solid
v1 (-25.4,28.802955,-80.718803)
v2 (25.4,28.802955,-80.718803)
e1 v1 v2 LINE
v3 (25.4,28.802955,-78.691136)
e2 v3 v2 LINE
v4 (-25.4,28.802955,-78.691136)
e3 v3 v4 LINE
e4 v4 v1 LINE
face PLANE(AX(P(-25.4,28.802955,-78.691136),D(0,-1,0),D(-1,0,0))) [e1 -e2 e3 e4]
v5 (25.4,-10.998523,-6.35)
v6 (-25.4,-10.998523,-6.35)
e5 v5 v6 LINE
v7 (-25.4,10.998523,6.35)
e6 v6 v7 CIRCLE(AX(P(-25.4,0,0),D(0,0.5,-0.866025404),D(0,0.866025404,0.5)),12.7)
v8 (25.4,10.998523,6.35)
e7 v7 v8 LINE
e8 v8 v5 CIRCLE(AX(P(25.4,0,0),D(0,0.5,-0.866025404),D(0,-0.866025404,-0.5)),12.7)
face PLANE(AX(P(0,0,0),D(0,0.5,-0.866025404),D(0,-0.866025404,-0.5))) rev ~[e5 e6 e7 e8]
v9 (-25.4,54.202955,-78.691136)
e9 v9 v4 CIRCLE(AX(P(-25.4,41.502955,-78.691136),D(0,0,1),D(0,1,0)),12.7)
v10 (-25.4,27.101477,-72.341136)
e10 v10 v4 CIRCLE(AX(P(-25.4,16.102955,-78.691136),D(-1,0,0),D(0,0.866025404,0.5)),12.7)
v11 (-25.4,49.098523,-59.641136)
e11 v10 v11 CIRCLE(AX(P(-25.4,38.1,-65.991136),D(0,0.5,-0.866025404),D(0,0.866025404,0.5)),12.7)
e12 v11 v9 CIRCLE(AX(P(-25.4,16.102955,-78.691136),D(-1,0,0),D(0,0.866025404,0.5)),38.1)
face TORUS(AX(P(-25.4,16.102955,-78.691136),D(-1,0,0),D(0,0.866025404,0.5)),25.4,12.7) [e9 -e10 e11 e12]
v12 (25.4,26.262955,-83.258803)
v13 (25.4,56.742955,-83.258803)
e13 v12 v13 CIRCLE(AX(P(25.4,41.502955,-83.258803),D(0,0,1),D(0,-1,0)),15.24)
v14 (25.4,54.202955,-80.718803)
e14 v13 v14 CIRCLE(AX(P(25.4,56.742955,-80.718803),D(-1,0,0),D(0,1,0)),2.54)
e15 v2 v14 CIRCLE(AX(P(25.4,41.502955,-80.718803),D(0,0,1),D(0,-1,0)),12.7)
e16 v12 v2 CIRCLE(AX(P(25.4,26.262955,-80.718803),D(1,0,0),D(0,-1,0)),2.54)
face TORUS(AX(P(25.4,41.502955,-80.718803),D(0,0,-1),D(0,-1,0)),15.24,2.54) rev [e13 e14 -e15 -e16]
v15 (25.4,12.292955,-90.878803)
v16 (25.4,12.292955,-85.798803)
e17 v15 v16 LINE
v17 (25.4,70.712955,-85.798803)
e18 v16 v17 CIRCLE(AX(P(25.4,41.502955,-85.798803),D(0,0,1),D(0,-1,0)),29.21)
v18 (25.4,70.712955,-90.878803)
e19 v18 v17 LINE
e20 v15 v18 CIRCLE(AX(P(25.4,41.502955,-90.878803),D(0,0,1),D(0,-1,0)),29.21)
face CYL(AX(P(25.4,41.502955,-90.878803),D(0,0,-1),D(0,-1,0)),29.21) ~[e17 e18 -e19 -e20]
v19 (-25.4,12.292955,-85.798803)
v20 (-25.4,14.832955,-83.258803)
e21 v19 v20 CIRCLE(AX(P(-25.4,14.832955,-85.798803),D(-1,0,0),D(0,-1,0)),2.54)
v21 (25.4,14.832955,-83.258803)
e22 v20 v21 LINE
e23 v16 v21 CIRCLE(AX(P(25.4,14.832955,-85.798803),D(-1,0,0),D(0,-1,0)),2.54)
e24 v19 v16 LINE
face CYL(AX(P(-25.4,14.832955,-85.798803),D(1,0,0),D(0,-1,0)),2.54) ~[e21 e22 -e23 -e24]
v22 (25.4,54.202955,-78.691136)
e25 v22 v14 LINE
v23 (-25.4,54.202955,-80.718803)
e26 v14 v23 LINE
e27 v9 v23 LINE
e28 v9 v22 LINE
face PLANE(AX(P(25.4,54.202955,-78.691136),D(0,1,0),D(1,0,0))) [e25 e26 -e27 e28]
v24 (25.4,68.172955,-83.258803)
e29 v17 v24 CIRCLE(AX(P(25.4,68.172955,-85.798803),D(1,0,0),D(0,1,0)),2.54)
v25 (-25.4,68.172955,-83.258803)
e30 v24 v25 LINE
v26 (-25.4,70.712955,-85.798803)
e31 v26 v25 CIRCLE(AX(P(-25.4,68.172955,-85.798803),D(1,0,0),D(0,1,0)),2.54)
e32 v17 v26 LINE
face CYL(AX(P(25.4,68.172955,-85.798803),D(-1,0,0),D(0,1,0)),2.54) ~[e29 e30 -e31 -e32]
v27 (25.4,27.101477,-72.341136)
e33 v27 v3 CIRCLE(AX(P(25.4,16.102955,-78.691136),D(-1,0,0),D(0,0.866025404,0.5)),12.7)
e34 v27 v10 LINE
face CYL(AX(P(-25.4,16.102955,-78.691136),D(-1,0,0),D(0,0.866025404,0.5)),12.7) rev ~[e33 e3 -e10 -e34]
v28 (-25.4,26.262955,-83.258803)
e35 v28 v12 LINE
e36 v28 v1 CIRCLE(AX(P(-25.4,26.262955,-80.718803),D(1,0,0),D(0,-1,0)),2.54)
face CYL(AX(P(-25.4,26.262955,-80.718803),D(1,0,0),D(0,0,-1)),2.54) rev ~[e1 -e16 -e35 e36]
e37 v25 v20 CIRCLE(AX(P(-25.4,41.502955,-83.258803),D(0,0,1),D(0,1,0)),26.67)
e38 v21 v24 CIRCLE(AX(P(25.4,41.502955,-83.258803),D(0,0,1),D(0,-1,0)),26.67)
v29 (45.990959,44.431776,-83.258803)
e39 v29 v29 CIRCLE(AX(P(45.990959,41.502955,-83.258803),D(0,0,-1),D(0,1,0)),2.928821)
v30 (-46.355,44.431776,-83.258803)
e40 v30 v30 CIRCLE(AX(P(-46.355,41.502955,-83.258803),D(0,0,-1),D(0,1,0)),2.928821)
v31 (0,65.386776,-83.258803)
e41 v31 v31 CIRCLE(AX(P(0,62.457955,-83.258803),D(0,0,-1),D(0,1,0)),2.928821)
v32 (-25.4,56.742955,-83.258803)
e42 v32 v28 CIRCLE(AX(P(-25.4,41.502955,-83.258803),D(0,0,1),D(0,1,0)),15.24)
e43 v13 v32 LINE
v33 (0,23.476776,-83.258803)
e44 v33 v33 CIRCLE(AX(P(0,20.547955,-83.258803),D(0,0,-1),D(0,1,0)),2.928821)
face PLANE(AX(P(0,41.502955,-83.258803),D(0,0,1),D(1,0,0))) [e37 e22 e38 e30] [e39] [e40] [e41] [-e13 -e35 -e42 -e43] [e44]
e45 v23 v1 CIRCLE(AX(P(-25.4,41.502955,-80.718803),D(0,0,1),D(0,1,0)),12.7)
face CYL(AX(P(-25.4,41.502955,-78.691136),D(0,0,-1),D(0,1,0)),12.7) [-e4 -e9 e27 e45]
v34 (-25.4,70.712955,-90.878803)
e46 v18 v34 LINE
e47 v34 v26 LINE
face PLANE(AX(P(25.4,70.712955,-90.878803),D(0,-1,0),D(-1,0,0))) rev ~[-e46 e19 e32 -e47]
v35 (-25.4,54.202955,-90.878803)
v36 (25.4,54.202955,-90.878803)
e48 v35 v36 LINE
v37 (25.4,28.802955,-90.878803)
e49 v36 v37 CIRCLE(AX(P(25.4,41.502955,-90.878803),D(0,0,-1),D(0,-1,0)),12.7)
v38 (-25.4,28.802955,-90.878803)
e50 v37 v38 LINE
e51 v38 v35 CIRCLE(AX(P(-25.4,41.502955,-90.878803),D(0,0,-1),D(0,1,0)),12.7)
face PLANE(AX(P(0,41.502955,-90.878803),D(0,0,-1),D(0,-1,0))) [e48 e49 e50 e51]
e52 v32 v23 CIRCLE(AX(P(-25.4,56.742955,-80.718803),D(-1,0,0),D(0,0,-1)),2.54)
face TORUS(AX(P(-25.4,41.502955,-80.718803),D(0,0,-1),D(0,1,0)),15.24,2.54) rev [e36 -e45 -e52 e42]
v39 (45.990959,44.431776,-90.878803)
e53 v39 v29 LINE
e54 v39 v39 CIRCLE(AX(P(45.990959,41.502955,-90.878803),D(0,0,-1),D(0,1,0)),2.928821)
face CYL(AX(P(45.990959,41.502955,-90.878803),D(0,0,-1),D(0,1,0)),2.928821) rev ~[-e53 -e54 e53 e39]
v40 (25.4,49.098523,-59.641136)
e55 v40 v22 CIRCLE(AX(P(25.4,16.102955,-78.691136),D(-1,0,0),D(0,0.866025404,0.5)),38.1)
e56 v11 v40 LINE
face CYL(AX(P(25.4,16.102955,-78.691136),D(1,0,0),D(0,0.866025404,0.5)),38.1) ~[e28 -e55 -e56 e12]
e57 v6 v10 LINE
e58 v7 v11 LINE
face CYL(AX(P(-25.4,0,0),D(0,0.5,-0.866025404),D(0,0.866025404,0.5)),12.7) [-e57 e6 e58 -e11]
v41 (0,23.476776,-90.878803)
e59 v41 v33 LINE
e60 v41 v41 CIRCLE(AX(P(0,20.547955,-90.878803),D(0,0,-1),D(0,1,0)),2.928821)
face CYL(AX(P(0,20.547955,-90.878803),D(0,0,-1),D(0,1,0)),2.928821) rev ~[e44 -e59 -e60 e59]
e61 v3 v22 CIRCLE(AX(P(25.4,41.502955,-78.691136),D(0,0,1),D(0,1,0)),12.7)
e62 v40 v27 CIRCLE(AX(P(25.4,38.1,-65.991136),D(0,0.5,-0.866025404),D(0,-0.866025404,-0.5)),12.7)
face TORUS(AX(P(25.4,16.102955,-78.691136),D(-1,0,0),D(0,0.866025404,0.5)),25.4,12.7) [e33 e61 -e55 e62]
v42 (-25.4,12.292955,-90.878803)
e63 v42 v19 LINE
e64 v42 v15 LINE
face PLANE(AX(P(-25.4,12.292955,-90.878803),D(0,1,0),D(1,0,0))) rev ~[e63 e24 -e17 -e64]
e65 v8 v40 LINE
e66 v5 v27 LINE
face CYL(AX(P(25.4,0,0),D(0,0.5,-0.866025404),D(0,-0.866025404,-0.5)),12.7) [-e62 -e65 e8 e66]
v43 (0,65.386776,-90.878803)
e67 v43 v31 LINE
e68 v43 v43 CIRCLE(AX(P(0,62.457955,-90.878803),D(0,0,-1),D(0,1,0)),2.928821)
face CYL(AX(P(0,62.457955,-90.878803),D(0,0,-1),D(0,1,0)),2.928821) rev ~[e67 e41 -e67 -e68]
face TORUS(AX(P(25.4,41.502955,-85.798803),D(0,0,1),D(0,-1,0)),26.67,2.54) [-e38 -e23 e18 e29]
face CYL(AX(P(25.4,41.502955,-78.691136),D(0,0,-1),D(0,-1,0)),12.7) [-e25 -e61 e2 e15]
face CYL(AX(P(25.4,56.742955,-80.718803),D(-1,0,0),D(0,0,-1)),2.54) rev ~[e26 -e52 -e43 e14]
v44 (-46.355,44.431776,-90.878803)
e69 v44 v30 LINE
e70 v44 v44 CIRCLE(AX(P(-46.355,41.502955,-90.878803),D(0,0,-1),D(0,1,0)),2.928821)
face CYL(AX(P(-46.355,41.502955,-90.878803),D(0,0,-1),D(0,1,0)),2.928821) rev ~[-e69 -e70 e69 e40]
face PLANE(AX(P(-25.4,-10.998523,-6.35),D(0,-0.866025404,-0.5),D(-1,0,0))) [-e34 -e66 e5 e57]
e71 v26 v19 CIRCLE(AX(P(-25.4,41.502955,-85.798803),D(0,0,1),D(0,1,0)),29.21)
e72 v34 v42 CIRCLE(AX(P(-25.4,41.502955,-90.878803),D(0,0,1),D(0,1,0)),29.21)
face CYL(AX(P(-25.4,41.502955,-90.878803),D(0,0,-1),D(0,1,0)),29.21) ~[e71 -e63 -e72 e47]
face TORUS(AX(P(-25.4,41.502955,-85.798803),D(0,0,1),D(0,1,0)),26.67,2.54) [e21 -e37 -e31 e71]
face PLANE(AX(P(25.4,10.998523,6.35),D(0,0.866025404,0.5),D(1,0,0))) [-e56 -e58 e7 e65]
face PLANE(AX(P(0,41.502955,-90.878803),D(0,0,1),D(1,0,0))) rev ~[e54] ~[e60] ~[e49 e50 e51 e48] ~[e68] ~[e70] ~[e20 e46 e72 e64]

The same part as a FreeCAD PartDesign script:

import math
import FreeCAD as App
import Part
import Sketcher
Q = App.Units.Quantity


def edges_at(feature, points):
    """Names of the edges that pass closest to the given points."""
    edges = feature.Shape.Edges
    near = lambda p: min(range(len(edges)), key=lambda i: edges[i].distToShape(Part.Vertex(*p))[0])
    return sorted({f"Edge{near(p) + 1}" for p in points})

doc = App.newDocument("Part")
body = doc.addObject("PartDesign::Body", "Body")

sketch1 = body.newObject("Sketcher::SketchObject", "Sketch")
sketch1.Placement = App.Placement(App.Vector(0, 0, 0), App.Rotation(App.Vector(-1, 0, 0), App.Vector(0, 0.866025404, 0.5), App.Vector(0, 0.5, -0.866025404), "ZXY"))
sketch1.addGeometry([
    Part.LineSegment(App.Vector(25, 13, 0), App.Vector(-25, 13, 0)),
    Part.ArcOfCircle(Part.Circle(App.Vector(-25, 0, 0), App.Vector(0, 0, 1), 13), math.radians(90), math.radians(270)),
    Part.LineSegment(App.Vector(-25, -13, 0), App.Vector(25, -13, 0)),
    Part.ArcOfCircle(Part.Circle(App.Vector(25, 0, 0), App.Vector(0, 0, 1), 13), math.radians(-90), math.radians(90)),
], False)
sketch1.addConstraint([
    Sketcher.Constraint("Tangent", 0, 2, 1, 1),
    Sketcher.Constraint("Tangent", 1, 2, 2, 1),
    Sketcher.Constraint("Tangent", 2, 2, 3, 1),
    Sketcher.Constraint("Tangent", 3, 2, 0, 1),
    Sketcher.Constraint("Horizontal", 0),
    Sketcher.Constraint("Horizontal", 2),
    Sketcher.Constraint("Symmetric", 1, 3, 3, 3, -1, 1),
    Sketcher.Constraint("Radius", 1, Q("0.5 in")),
    Sketcher.Constraint("DistanceX", 0, 2, 0, 1, Q("2 in")),
])

sketch2 = body.newObject("Sketcher::SketchObject", "Sketch001")
sketch2.AttachmentSupport = (doc.getObject("YZ_Plane"), [""])
sketch2.MapMode = "FlatFace"
sketch2.addGeometry([
    Part.LineSegment(App.Vector(0, 0, 0), App.Vector(38, -66, 0)),
    Part.ArcOfCircle(Part.Circle(App.Vector(16, -79, 0), App.Vector(0, 0, 1), 25), math.radians(0), math.radians(30)),
    Part.LineSegment(App.Vector(42, -79, 0), App.Vector(42, -91, 0)),
], False)
sketch2.addConstraint([
    Sketcher.Constraint("Tangent", 0, 2, 1, 2),
    Sketcher.Constraint("Tangent", 1, 1, 2, 1),
    Sketcher.Constraint("Vertical", 2),
    Sketcher.Constraint("Coincident", 0, 1, -1, 1),
    Sketcher.Constraint("Radius", 1, Q("1 in")),
    Sketcher.Constraint("Distance", 0, Q("3 in")),
    Sketcher.Constraint("Angle", 0, Q("-60 deg")),
    Sketcher.Constraint("DistanceY", 2, 2, 2, 1, Q("12.187667 mm")),
])
doc.recompute()

additivepipe = body.newObject("PartDesign::AdditivePipe", "AdditivePipe")
additivepipe.Profile = sketch1
additivepipe.Spine = (sketch2, ["Edge1", "Edge2", "Edge3"])

sketch3 = body.newObject("Sketcher::SketchObject", "Sketch002")
sketch3.AttachmentSupport = (doc.getObject("XY_Plane"), [""])
sketch3.MapMode = "FlatFace"
sketch3.AttachmentOffset = App.Placement(App.Vector(0, 0, -90.878803), App.Rotation())
sketch3.addGeometry([
    Part.LineSegment(App.Vector(-25.4, 70.7, 0), App.Vector(25.4, 70.7, 0)),
    Part.ArcOfCircle(Part.Circle(App.Vector(25.4, 41.5, 0), App.Vector(0, 0, 1), 29.2), math.radians(-90), math.radians(90)),
    Part.LineSegment(App.Vector(25.4, 12.3, 0), App.Vector(-25.4, 12.3, 0)),
    Part.ArcOfCircle(Part.Circle(App.Vector(-25.4, 41.5, 0), App.Vector(0, 0, 1), 29.2), math.radians(90), math.radians(270)),
    Part.Circle(App.Vector(0, 20.5, 0), App.Vector(0, 0, 1), 2.9),
    Part.Circle(App.Vector(-46.4, 41.5, 0), App.Vector(0, 0, 1), 2.9),
    Part.LineSegment(App.Vector(25.4, 54.2, 0), App.Vector(-25.4, 54.2, 0)),
    Part.ArcOfCircle(Part.Circle(App.Vector(-25.4, 41.5, 0), App.Vector(0, 0, 1), 12.7), math.radians(90), math.radians(270)),
    Part.LineSegment(App.Vector(-25.4, 28.8, 0), App.Vector(25.4, 28.8, 0)),
    Part.ArcOfCircle(Part.Circle(App.Vector(25.4, 41.5, 0), App.Vector(0, 0, 1), 12.7), math.radians(-90), math.radians(90)),
    Part.Circle(App.Vector(46, 41.5, 0), App.Vector(0, 0, 1), 2.9),
    Part.Circle(App.Vector(0, 62.5, 0), App.Vector(0, 0, 1), 2.9),
], False)
sketch3.addConstraint([
    Sketcher.Constraint("Tangent", 0, 2, 1, 2),
    Sketcher.Constraint("Tangent", 1, 1, 2, 1),
    Sketcher.Constraint("Tangent", 2, 2, 3, 2),
    Sketcher.Constraint("Tangent", 3, 1, 0, 1),
    Sketcher.Constraint("Tangent", 6, 2, 7, 1),
    Sketcher.Constraint("Tangent", 7, 2, 8, 1),
    Sketcher.Constraint("Tangent", 8, 2, 9, 1),
    Sketcher.Constraint("Tangent", 9, 2, 6, 1),
    Sketcher.Constraint("Horizontal", 0),
    Sketcher.Constraint("Horizontal", 2),
    Sketcher.Constraint("Horizontal", 6),
    Sketcher.Constraint("Horizontal", 8),
    Sketcher.Constraint("Coincident", 7, 3, 3, 3),
    Sketcher.Constraint("Equal", 4, 5),
    Sketcher.Constraint("Equal", 5, 10),
    Sketcher.Constraint("Equal", 10, 11),
    Sketcher.Constraint("PointOnObject", 4, 3, -2),
    Sketcher.Constraint("PointOnObject", 11, 3, -2),
    Sketcher.Constraint("Horizontal", 3, 3, 5, 3),
    Sketcher.Constraint("Horizontal", 9, 3, 10, 3),
    Sketcher.Constraint("Vertical", 9, 3, 0, 2),
    Sketcher.Constraint("Radius", 7, Q("0.5 in")),
    Sketcher.Constraint("DistanceX", 0, 1, 0, 2, Q("2 in")),
    Sketcher.Constraint("Radius", 1, Q("1.15 in")),
    Sketcher.Constraint("DistanceX", -1, 1, 1, 3, Q("1 in")),
    Sketcher.Constraint("DistanceY", 4, 3, 11, 3, Q("1.65 in")),
    Sketcher.Constraint("Diameter", 4, Q("5.857642 mm")),
    Sketcher.Constraint("DistanceX", 5, 3, -1, 1, Q("1.825 in")),
    Sketcher.Constraint("DistanceY", 4, 3, 1, 3, Q("0.825 in")),
    Sketcher.Constraint("DistanceX", -1, 1, 10, 3, Q("45.990959 mm")),
    Sketcher.Constraint("DistanceY", -1, 1, 1, 3, Q("41.502955 mm")),
])
pad1 = body.newObject("PartDesign::Pad", "Pad")
pad1.Profile = sketch3
pad1.Length = Q("0.3 in")
doc.recompute()

fillet = body.newObject("PartDesign::Fillet", "Fillet")
fillet.Base = (pad1, edges_at(pad1, [
    (54.61, 41.503, -83.259),
    (0, 70.713, -83.259),
    (-54.61, 41.503, -83.259),
    (0, 12.293, -83.259),
    (38.1, 41.503, -83.259),
    (0, 28.803, -83.259),
    (-38.1, 41.503, -83.259),
    (0, 54.203, -83.259),
]))
fillet.Radius = Q("0.1 in")

doc.recompute()
